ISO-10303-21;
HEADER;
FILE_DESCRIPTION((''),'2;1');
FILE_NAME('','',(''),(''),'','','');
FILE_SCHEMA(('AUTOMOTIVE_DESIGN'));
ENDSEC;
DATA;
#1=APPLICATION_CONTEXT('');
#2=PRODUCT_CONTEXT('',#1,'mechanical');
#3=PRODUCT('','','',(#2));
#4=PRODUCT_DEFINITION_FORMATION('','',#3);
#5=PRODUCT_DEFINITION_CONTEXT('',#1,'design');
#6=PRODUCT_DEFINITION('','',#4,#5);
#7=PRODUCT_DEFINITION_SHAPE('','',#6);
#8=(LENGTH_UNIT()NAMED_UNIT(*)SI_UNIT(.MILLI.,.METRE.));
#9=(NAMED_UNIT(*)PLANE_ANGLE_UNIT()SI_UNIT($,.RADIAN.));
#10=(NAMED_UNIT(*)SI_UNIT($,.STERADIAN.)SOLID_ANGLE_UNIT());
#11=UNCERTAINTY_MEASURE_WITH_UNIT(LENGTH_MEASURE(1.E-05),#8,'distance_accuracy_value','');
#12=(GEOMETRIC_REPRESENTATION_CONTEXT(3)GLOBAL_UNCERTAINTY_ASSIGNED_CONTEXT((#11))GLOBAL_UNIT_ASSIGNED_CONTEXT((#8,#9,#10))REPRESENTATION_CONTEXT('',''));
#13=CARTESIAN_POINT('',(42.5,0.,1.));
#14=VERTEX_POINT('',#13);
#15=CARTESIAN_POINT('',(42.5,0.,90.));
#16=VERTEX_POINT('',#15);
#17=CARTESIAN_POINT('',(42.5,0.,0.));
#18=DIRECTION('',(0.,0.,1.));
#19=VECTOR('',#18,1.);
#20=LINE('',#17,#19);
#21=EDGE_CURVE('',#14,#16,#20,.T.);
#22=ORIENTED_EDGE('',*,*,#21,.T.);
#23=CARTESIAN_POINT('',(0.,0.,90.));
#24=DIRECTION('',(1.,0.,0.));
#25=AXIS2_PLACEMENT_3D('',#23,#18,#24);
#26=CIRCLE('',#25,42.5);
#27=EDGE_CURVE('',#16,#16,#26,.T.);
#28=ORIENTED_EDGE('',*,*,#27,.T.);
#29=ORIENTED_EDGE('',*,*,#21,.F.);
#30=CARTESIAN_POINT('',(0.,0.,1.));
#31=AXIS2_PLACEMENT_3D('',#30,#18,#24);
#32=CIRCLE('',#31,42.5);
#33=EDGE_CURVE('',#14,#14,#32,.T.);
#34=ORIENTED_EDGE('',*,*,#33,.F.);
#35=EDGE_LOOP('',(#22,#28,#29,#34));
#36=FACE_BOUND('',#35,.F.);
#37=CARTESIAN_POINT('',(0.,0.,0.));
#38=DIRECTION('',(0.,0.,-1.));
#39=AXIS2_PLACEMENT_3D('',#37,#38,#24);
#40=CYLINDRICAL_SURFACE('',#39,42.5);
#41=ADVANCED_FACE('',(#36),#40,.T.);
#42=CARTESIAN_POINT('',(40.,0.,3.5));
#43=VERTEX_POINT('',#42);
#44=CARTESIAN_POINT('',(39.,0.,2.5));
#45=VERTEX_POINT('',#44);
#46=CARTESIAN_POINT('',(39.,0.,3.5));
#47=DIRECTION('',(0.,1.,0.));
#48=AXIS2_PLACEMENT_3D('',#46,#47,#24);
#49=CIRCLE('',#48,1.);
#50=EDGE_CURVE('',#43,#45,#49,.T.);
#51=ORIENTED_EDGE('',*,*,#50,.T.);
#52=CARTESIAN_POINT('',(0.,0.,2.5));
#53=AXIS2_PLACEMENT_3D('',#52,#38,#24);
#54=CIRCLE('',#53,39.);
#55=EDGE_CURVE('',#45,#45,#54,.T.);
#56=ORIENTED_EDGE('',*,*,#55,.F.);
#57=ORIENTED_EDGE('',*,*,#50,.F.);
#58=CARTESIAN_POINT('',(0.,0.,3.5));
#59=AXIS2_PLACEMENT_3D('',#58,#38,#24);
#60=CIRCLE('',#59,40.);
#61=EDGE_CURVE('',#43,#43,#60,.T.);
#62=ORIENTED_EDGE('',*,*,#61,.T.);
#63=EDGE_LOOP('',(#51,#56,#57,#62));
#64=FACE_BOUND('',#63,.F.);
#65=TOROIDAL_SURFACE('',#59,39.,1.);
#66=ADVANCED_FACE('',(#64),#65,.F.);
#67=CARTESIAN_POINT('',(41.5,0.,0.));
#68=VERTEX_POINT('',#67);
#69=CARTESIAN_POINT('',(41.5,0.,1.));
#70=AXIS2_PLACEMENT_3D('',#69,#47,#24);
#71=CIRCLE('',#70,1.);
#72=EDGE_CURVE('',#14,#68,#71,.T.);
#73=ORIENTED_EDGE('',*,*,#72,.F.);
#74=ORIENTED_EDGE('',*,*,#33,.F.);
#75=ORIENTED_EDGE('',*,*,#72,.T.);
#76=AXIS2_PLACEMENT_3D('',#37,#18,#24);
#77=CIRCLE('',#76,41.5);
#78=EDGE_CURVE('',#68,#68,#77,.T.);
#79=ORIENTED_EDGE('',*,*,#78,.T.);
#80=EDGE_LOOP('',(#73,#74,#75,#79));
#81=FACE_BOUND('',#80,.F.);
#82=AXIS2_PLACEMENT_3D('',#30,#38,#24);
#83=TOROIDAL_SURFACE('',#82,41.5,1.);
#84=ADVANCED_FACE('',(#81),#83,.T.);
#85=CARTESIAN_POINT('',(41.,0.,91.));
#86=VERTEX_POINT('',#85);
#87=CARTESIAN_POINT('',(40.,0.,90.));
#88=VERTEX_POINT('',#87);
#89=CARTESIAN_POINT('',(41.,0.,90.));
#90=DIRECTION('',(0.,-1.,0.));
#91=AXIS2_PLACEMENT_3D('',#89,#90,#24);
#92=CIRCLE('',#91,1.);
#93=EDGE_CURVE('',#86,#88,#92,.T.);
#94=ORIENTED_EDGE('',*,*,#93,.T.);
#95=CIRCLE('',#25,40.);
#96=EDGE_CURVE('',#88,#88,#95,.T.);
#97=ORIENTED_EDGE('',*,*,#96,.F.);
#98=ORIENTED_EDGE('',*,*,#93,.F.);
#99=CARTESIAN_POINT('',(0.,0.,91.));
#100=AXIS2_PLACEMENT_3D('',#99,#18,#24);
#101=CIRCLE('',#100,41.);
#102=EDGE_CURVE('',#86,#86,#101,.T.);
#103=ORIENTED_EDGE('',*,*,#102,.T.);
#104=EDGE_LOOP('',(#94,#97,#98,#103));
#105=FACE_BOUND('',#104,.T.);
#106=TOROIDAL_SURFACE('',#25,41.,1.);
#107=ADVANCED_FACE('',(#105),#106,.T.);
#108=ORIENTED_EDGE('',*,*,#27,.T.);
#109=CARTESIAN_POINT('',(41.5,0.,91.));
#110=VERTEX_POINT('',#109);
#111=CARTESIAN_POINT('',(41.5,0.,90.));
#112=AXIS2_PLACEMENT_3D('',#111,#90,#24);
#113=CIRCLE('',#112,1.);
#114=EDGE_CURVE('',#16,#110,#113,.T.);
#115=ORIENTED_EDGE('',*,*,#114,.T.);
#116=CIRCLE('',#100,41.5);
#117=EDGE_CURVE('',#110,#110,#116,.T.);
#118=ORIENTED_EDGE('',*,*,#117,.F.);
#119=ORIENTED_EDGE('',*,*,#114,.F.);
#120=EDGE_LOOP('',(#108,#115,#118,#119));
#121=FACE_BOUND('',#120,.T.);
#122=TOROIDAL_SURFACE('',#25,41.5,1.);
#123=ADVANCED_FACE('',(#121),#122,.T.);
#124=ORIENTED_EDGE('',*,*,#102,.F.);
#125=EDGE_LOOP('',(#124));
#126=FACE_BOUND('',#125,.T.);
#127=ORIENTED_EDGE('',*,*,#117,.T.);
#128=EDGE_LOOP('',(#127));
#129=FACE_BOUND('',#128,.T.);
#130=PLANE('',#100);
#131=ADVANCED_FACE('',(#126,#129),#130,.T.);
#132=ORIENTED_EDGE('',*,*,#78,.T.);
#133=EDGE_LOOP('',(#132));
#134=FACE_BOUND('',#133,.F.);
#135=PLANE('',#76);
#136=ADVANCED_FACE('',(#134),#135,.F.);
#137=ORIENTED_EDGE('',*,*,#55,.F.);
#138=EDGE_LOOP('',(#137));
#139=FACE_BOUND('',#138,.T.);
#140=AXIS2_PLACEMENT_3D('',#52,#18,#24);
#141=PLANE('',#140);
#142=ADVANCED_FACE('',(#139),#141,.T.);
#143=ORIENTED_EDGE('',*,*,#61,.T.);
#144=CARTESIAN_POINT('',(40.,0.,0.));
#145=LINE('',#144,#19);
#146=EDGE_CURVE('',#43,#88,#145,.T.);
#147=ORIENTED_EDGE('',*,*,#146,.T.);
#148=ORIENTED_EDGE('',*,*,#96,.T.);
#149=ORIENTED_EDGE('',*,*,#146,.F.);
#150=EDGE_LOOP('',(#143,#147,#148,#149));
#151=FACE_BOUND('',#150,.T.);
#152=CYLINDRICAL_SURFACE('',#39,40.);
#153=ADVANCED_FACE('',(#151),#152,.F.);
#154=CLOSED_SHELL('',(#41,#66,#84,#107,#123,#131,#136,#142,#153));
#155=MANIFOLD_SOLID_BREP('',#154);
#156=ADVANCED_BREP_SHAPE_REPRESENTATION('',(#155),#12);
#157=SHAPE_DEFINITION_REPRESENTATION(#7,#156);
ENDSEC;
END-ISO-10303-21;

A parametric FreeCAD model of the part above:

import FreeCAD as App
import Part
import Sketcher

V = App.Vector
Q = App.Units.Quantity


def faces_at(feature, points):
    """Names of the faces that lie closest to the given points."""
    faces = feature.Shape.Faces
    near = lambda p: min(range(len(faces)), key=lambda i: faces[i].distToShape(Part.Vertex(*p))[0])
    return sorted({f"Face{near(p) + 1}" for p in points})

doc = App.newDocument("Part")
params = doc.addObject("Spreadsheet::Sheet", "Params")
for row, (alias, value) in enumerate([
    ("sketch1_diameter", "85 mm"),
    ("pad1_length", "91 mm"),
    ("thickness_wall", "2.5 mm"),
    ("fillet_radius", "1 mm"),
], start=1):
    params.set(f"A{row}", alias)
    params.set(f"B{row}", "=" + value)
    params.setAlias(f"B{row}", alias)

body = doc.addObject("PartDesign::Body", "Body")

sketch1 = body.newObject("Sketcher::SketchObject", "Sketch")
sketch1.AttachmentSupport = (doc.getObject("XY_Plane"), [""])
sketch1.MapMode = "FlatFace"
sketch1.addGeometry(Part.Circle(V(0, 0, 0), V(0, 0, 1), 42.5), False)
sketch1.addConstraint([
    Sketcher.Constraint("Coincident", 0, 3, -1, 1),
    Sketcher.Constraint("Diameter", 0, Q("85 mm")),
])
sketch1.setExpression("Constraints[1]", "Params.sketch1_diameter")
pad1 = body.newObject("PartDesign::Pad", "Pad")
pad1.Profile = sketch1
pad1.setExpression("Length", "Params.pad1_length")
doc.recompute()

thickness = body.newObject("PartDesign::Thickness", "Thickness")
thickness.Base = (pad1, faces_at(pad1, [(0, 0, 91)]))
thickness.setExpression("Value", "Params.thickness_wall")
thickness.Reversed = True
thickness.Join = "Arc"
doc.recompute()

fillet = body.newObject("PartDesign::Fillet", "Fillet")
fillet.Base = (thickness, ["Edge1"])
fillet.UseAllEdges = True
fillet.setExpression("Radius", "Params.fillet_radius")

doc.recompute()
